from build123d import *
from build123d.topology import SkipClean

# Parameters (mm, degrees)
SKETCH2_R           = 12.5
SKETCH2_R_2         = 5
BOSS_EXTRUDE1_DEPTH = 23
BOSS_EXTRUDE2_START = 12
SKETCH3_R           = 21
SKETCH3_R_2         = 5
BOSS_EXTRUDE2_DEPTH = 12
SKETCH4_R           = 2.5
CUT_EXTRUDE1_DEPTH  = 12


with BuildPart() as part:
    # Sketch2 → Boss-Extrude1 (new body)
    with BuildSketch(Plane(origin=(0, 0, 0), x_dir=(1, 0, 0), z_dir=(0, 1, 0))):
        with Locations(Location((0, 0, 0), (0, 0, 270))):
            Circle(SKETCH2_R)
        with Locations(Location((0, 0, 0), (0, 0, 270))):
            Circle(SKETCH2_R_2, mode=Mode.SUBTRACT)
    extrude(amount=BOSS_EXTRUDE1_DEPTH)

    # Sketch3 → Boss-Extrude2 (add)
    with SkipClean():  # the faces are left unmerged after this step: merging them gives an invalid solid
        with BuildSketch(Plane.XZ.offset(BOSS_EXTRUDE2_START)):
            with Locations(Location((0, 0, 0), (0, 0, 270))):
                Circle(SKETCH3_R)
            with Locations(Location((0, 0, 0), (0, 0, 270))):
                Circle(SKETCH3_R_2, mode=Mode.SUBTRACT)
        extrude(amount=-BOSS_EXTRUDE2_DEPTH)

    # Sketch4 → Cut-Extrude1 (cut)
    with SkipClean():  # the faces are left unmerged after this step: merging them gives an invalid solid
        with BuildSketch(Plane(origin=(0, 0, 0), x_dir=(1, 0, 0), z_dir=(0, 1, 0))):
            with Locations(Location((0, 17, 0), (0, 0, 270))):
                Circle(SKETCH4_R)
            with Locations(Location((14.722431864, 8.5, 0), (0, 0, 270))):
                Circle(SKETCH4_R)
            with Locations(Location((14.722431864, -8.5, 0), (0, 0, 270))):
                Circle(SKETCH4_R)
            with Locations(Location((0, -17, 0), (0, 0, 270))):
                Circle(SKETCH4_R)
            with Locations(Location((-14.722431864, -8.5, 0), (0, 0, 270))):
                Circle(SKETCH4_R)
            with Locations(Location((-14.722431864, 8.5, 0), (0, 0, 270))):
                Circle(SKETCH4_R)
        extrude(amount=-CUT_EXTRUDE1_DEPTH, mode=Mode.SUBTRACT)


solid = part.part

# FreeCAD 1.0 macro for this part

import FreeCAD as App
import Part
import Sketcher

doc = App.newDocument("Part")
body = doc.addObject("PartDesign::Body", "Body")

# Sketch on XZ plane
sketch1 = body.newObject("Sketcher::SketchObject", "Sketch")
sketch1.AttachmentSupport = (doc.getObject("XZ_Plane"), [""])
sketch1.MapMode = "FlatFace"
sketch1.addGeometry([
    Part.Circle(App.Vector(0, 0, 0), App.Vector(0, 0, 1), 12),
    Part.Circle(App.Vector(0, 0, 0), App.Vector(0, 0, 1), 5),
], False)
sketch1.addConstraint([
    Sketcher.Constraint("Coincident", 0, 3, -1, 1),
    Sketcher.Constraint("Coincident", 1, 3, -1, 1),
    Sketcher.Constraint("Diameter", 0, 25.0),
    Sketcher.Constraint("Diameter", 1, 10.0),
])
pad1 = body.newObject("PartDesign::Pad", "Pad")
pad1.Profile = sketch1
pad1.Length = 23
pad1.Reversed = True

# Sketch on XZ plane
sketch2 = body.newObject("Sketcher::SketchObject", "Sketch001")
sketch2.AttachmentSupport = (doc.getObject("XZ_Plane"), [""])
sketch2.MapMode = "FlatFace"
sketch2.AttachmentOffset = App.Placement(App.Vector(0, 0, 12), App.Rotation())
sketch2.addGeometry([
    Part.Circle(App.Vector(0, 0, 0), App.Vector(0, 0, 1), 21),
    Part.Circle(App.Vector(0, 0, 0), App.Vector(0, 0, 1), 5),
], False)
sketch2.addConstraint([
    Sketcher.Constraint("Coincident", 0, 3, -1, 1),
    Sketcher.Constraint("Coincident", 1, 3, -1, 1),
    Sketcher.Constraint("Diameter", 0, 42.0),
    Sketcher.Constraint("Diameter", 1, 10.0),
])
pad2 = body.newObject("PartDesign::Pad", "Pad001")
pad2.Profile = sketch2
pad2.Length = 12
pad2.Reversed = True

# Sketch on XZ plane
sketch3 = body.newObject("Sketcher::SketchObject", "Sketch002")
sketch3.AttachmentSupport = (doc.getObject("XZ_Plane"), [""])
sketch3.MapMode = "FlatFace"
sketch3.addGeometry([
    Part.Circle(App.Vector(0, -17, 0), App.Vector(0, 0, 1), 2.5),  # 0
    Part.Circle(App.Vector(14.7, -8.5, 0), App.Vector(0, 0, 1), 2.5),  # 1
    Part.Circle(App.Vector(14.7, 8.5, 0), App.Vector(0, 0, 1), 2.5),  # 2
    Part.Circle(App.Vector(0, 17, 0), App.Vector(0, 0, 1), 2.5),  # 3
    Part.Circle(App.Vector(-14.7, 8.5, 0), App.Vector(0, 0, 1), 2.5),  # 4
    Part.Circle(App.Vector(-14.7, -8.5, 0), App.Vector(0, 0, 1), 2.5),  # 5
], False)
sketch3.addConstraint([
    Sketcher.Constraint("Equal", 0, 1),
    Sketcher.Constraint("Equal", 1, 2),
    Sketcher.Constraint("Equal", 2, 3),
    Sketcher.Constraint("Equal", 3, 4),
    Sketcher.Constraint("Equal", 4, 5),
    Sketcher.Constraint("Symmetric", 0, 3, 3, 3, -1, 1),
    Sketcher.Constraint("Symmetric", 1, 3, 4, 3, -1, 1),
    Sketcher.Constraint("Symmetric", 2, 3, 5, 3, -1, 1),
    Sketcher.Constraint("Symmetric", 2, 3, 4, 3, -2),
    Sketcher.Constraint("PointOnObject", 0, 3, -2),
    Sketcher.Constraint("Diameter", 0, 5.0),
    Sketcher.Constraint("DistanceY", 0, 3, -1, 1, 17.0),
    Sketcher.Constraint("DistanceY", 1, 3, 2, 3, 17.0),
    Sketcher.Constraint("DistanceX", -1, 1, 1, 3, 14.722432),
])
pocket1 = body.newObject("PartDesign::Pocket", "Pocket")
pocket1.Profile = sketch3
pocket1.Length = 12
pocket1.Reversed = True

doc.recompute()
